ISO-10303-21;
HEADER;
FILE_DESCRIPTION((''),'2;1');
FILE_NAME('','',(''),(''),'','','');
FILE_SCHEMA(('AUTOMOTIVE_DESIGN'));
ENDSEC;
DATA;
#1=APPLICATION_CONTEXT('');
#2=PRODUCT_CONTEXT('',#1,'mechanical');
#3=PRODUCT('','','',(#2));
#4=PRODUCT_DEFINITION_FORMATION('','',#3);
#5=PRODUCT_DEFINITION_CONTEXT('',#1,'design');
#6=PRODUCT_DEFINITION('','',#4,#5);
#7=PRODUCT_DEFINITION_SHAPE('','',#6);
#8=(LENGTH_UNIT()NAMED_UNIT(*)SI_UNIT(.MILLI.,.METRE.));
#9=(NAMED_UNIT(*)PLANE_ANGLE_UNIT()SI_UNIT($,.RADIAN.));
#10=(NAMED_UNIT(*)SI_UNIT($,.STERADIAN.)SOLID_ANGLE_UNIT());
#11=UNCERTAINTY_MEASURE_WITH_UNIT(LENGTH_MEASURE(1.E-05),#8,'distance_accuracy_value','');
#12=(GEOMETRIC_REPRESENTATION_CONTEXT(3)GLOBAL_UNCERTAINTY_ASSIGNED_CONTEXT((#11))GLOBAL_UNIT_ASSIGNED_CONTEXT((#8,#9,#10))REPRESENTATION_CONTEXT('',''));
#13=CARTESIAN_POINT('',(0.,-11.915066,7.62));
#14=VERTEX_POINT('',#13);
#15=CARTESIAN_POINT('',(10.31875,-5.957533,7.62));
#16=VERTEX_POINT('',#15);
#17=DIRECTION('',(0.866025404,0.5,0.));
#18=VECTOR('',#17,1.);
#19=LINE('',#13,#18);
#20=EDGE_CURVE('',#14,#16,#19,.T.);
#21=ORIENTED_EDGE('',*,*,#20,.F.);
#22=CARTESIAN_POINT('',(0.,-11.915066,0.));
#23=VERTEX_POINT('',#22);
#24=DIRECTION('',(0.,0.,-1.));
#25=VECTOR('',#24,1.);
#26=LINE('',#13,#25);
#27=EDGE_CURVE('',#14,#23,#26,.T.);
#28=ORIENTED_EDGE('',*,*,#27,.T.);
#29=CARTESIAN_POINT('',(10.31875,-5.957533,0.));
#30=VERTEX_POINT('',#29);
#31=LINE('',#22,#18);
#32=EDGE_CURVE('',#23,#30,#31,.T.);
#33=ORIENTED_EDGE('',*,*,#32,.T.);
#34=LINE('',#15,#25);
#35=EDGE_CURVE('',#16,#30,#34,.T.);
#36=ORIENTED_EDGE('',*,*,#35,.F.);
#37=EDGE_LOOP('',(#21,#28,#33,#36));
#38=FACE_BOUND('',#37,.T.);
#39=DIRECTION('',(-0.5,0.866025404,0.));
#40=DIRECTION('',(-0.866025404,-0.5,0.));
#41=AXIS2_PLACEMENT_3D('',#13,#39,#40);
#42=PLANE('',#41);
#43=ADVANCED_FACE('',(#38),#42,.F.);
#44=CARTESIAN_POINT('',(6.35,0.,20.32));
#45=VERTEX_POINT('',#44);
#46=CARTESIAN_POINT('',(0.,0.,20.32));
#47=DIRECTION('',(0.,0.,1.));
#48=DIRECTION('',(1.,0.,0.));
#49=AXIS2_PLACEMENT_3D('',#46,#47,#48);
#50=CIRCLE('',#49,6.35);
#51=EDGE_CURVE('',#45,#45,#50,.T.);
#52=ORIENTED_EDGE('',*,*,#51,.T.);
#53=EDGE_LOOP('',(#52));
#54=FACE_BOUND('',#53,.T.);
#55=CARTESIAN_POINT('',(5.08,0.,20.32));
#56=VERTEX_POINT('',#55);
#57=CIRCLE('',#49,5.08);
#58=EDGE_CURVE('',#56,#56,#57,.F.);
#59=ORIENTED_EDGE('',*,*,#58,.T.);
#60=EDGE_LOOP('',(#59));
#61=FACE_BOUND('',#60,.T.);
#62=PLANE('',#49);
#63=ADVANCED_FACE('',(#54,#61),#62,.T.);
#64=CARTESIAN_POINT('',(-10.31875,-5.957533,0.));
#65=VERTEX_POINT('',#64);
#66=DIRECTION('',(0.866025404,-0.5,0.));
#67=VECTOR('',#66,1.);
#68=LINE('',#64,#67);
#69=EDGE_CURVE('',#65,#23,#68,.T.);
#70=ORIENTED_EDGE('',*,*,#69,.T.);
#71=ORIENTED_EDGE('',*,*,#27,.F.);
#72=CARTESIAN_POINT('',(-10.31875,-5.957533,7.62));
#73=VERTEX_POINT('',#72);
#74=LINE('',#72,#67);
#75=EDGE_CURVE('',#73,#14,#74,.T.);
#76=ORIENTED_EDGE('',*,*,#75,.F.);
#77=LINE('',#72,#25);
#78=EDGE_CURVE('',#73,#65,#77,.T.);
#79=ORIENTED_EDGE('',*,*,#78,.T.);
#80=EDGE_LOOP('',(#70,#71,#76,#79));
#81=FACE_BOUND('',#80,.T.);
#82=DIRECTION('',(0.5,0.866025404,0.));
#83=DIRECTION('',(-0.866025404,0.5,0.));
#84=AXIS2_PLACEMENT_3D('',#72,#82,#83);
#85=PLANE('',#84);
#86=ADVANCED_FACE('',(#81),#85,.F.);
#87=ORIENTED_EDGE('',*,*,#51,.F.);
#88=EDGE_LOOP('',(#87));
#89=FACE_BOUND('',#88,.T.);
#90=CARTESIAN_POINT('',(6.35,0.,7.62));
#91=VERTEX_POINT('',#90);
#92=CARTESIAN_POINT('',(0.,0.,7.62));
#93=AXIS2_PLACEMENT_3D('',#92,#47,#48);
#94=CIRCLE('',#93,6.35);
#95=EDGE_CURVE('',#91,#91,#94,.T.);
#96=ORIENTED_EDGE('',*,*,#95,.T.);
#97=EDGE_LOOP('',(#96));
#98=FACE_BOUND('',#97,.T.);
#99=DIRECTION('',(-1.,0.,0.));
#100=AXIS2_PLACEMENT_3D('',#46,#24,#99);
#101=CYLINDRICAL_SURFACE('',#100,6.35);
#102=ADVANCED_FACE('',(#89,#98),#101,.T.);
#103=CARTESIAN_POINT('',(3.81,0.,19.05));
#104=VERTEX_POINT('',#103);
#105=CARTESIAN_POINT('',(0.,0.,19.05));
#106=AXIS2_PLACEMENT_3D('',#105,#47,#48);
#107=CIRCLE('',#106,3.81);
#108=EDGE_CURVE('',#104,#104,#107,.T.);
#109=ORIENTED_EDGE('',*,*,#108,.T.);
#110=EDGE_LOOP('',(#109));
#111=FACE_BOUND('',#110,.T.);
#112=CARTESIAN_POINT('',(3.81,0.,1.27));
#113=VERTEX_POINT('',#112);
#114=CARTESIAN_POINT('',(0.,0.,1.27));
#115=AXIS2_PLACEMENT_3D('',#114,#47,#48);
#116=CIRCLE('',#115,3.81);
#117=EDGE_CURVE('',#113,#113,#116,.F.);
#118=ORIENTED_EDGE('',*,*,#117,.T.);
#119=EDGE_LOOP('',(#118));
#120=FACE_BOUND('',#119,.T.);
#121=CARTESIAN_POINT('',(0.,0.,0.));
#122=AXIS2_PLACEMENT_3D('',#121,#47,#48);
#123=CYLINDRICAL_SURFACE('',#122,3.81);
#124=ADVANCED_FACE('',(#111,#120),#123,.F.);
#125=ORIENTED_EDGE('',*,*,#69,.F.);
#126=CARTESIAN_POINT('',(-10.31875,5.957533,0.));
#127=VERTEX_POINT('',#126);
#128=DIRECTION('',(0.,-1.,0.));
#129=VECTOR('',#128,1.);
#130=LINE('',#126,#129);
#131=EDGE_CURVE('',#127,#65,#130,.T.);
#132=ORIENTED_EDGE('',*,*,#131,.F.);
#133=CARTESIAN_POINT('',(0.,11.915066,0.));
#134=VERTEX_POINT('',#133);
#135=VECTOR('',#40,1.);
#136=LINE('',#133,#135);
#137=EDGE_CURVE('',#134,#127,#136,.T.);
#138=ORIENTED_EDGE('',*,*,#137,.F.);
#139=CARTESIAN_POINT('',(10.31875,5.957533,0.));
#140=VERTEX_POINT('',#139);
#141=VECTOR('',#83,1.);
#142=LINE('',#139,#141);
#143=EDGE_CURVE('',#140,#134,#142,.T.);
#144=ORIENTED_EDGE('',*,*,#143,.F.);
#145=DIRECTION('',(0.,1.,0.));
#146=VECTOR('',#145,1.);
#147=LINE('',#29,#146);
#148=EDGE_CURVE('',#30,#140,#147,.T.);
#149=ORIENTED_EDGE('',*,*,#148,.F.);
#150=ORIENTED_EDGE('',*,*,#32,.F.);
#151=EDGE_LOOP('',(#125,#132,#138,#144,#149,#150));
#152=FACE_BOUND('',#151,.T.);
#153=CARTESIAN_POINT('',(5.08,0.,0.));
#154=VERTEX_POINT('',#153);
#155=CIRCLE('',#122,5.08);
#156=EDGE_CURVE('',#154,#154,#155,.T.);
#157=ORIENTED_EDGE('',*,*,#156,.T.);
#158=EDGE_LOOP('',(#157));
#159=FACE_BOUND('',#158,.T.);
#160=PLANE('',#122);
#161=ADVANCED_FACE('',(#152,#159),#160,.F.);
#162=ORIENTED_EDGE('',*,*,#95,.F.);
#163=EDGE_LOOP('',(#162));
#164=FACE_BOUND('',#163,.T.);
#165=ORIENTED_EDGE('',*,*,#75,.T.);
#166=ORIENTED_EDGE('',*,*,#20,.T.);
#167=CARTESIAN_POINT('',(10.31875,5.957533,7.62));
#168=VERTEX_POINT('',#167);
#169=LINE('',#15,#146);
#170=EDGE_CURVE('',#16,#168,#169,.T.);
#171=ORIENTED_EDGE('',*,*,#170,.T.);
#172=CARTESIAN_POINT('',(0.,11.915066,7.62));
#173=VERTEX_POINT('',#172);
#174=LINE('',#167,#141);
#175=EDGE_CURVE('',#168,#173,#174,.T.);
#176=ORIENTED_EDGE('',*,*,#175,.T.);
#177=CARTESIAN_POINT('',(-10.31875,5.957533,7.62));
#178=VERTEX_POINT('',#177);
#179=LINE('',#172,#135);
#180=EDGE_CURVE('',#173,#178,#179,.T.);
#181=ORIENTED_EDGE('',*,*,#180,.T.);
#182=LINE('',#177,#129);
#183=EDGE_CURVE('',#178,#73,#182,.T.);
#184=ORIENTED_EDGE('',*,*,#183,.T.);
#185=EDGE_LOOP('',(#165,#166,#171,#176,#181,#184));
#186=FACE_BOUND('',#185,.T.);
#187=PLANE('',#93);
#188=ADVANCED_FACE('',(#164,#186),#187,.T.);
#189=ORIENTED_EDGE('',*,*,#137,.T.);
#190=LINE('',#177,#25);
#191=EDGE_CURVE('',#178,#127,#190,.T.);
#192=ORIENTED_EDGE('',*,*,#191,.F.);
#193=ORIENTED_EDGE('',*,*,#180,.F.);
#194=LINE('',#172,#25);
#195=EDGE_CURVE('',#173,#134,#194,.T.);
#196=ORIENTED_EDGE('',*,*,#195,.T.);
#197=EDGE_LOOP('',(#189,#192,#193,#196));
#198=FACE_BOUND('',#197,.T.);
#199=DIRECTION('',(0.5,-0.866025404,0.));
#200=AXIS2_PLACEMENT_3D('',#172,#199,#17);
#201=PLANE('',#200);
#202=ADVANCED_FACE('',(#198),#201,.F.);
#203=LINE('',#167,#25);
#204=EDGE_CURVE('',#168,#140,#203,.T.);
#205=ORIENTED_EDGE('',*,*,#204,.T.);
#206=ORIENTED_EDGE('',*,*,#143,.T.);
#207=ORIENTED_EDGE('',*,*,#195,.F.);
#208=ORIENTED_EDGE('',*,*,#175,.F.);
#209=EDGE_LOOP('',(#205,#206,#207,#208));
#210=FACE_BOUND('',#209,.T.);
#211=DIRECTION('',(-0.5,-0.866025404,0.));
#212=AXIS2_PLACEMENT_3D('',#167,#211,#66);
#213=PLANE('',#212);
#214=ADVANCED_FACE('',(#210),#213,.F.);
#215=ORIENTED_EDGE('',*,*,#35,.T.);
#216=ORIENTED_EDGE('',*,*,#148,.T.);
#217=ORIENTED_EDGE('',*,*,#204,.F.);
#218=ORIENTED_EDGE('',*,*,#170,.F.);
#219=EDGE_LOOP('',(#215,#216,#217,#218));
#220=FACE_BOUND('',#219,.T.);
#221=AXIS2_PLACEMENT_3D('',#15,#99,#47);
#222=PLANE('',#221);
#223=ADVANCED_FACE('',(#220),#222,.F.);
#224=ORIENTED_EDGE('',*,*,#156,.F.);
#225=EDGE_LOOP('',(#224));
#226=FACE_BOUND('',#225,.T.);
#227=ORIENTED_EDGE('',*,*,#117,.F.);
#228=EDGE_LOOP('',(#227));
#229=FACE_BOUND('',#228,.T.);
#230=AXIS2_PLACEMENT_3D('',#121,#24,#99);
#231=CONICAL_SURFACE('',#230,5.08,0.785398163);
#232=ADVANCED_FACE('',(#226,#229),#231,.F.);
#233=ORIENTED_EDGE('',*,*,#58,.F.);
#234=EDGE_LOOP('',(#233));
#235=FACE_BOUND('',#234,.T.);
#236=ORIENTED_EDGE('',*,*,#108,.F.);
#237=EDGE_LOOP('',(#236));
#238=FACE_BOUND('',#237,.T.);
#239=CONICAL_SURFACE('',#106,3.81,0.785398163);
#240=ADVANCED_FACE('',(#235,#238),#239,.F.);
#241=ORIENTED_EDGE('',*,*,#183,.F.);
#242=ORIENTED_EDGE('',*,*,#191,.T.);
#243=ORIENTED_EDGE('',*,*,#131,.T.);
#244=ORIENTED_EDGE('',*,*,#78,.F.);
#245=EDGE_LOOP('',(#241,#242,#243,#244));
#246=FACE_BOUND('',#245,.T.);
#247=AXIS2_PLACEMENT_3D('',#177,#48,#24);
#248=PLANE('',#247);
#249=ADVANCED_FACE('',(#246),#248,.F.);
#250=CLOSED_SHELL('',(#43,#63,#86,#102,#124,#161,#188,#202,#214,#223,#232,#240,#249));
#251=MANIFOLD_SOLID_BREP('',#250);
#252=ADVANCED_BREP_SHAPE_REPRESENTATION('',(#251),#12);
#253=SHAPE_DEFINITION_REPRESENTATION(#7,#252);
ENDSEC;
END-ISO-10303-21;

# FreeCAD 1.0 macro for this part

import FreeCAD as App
import Part
import Sketcher

V = App.Vector
Q = App.Units.Quantity


def edges_at(feature, points):
    """Names of the edges that pass closest to the given points."""
    edges = feature.Shape.Edges
    near = lambda p: min(range(len(edges)), key=lambda i: edges[i].distToShape(Part.Vertex(*p))[0])
    return sorted({f"Edge{near(p) + 1}" for p in points})


def add_polygon(sketch, points):
    """Adds a closed chain of lines whose ends are joined by coincident constraints."""
    first, n = sketch.GeometryCount, len(points)
    for a, b in zip(points, points[1:] + points[:1]):
        sketch.addGeometry(Part.LineSegment(App.Vector(*a, 0), App.Vector(*b, 0)), False)
    for i in range(n):
        sketch.addConstraint(Sketcher.Constraint("Coincident", first + i, 2, first + (i + 1) % n, 1))

doc = App.newDocument("Part")
params = doc.addObject("Spreadsheet::Sheet", "Params")
for row, (alias, value) in enumerate([
    ("pad1_length", "0.3 in"),
    ("sketch2_diameter", "0.5 in"),
    ("pad2_length", "0.5 in"),
    ("sketch3_diameter", "0.3 in"),
    ("chamfer_size", "0.05 in"),
], start=1):
    params.set(f"A{row}", alias)
    params.set(f"B{row}", "=" + value)
    params.setAlias(f"B{row}", alias)

body = doc.addObject("PartDesign::Body", "Body")

# Sketch on XY plane
sketch1 = body.newObject("Sketcher::SketchObject", "Sketch")
sketch1.AttachmentSupport = (doc.getObject("XY_Plane"), [""])
sketch1.MapMode = "FlatFace"
add_polygon(sketch1, [(10.31875, 5.957533), (0, 11.915066), (-10.31875, 5.957533), (-10.31875, -5.957533), (0, -11.915066), (10.31875, -5.957533)])  # lines 0-5
sketch1.addConstraint(Sketcher.Constraint("Vertical", 2))
sketch1.addConstraint(Sketcher.Constraint("Vertical", 5))
sketch1.addConstraint(Sketcher.Constraint("Symmetric", 0, 2, 3, 2, -1, 1))
sketch1.addConstraint(Sketcher.Constraint("Symmetric", 1, 2, 4, 2, -1, 1))
sketch1.addConstraint(Sketcher.Constraint("PointOnObject", 0, 2, -2))
sketch1.addConstraint(Sketcher.Constraint("Parallel", 0, 3))
sketch1.addConstraint(Sketcher.Constraint("Horizontal", 2, 2, 4, 2))
sketch1.addConstraint(Sketcher.Constraint("Angle", 0, Q("150 deg")))
sketch1.addConstraint(Sketcher.Constraint("DistanceX", 1, 2, -1, 1, Q("0.40625 in")))
sketch1.addConstraint(Sketcher.Constraint("DistanceY", 2, 2, 0, 2, Q("17.872599 mm")))
pad1 = body.newObject("PartDesign::Pad", "Pad")
pad1.Profile = sketch1
pad1.setExpression("Length", "Params.pad1_length")

# Sketch on XY plane
sketch2 = body.newObject("Sketcher::SketchObject", "Sketch001")
sketch2.AttachmentSupport = (doc.getObject("XY_Plane"), [""])
sketch2.MapMode = "FlatFace"
sketch2.AttachmentOffset = App.Placement(V(0, 0, 0.3 * 25.4), App.Rotation())
sketch2.addGeometry(Part.Circle(V(0, 0, 0), V(0, 0, 1), 6.35), False)
sketch2.addConstraint(Sketcher.Constraint("Coincident", 0, 3, -1, 1))
sketch2.addConstraint(Sketcher.Constraint("Diameter", 0, Q("0.5 in")))
sketch2.setExpression("Constraints[1]", "Params.sketch2_diameter")
pad2 = body.newObject("PartDesign::Pad", "Pad001")
pad2.Profile = sketch2
pad2.setExpression("Length", "Params.pad2_length")

# Sketch on XY plane
sketch3 = body.newObject("Sketcher::SketchObject", "Sketch002")
sketch3.AttachmentSupport = (doc.getObject("XY_Plane"), [""])
sketch3.MapMode = "FlatFace"
sketch3.AttachmentOffset = App.Placement(V(0, 0, 0.8 * 25.4), App.Rotation())
sketch3.addGeometry(Part.Circle(V(0, 0, 0), V(0, 0, 1), 3.81), False)
sketch3.addConstraint(Sketcher.Constraint("Coincident", 0, 3, -1, 1))
sketch3.addConstraint(Sketcher.Constraint("Diameter", 0, Q("0.3 in")))
sketch3.setExpression("Constraints[1]", "Params.sketch3_diameter")
pocket1 = body.newObject("PartDesign::Pocket", "Pocket")
pocket1.Profile = sketch3
pocket1.Type = "ThroughAll"
doc.recompute()

chamfer = body.newObject("PartDesign::Chamfer", "Chamfer")
chamfer.Base = (pocket1, edges_at(pocket1, [(-3.81, 0, 0), (-3.81, 0, 20.32)]))
chamfer.setExpression("Size", "Params.chamfer_size")

doc.recompute()
